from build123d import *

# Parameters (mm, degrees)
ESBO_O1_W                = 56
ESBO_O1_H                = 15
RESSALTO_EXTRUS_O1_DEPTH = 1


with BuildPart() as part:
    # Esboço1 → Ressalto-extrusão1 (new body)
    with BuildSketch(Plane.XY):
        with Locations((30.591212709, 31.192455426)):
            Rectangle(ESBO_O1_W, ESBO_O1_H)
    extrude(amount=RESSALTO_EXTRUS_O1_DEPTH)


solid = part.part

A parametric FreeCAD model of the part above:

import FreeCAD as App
import Part
import Sketcher

V = App.Vector
Q = App.Units.Quantity


def add_polygon(sketch, points):
    """Adds a closed chain of lines whose ends are joined by coincident constraints."""
    first, n = sketch.GeometryCount, len(points)
    for a, b in zip(points, points[1:] + points[:1]):
        sketch.addGeometry(Part.LineSegment(App.Vector(*a, 0), App.Vector(*b, 0)), False)
    for i in range(n):
        sketch.addConstraint(Sketcher.Constraint("Coincident", first + i, 2, first + (i + 1) % n, 1))

doc = App.newDocument("Part")
body = doc.addObject("PartDesign::Body", "Body")

# Sketch on XY plane
sketch1 = body.newObject("Sketcher::SketchObject", "Sketch")
sketch1.AttachmentSupport = (doc.getObject("XY_Plane"), [""])
sketch1.MapMode = "FlatFace"
add_polygon(sketch1, [(3, 39), (3, 24), (59, 24), (59, 39)])  # lines 0-3
sketch1.addConstraint([
    Sketcher.Constraint("Vertical", 0),
    Sketcher.Constraint("Horizontal", 1),
    Sketcher.Constraint("Vertical", 2),
    Sketcher.Constraint("Horizontal", 3),
    Sketcher.Constraint("DistanceX", 1, 1, 1, 2, Q("56 mm")),
    Sketcher.Constraint("DistanceY", 0, 2, 0, 1, Q("15 mm")),
    Sketcher.Constraint("DistanceX", -1, 1, 0, 2, Q("2.591213 mm")),
    Sketcher.Constraint("DistanceY", -1, 1, 0, 2, Q("23.692455 mm")),
])
pad1 = body.newObject("PartDesign::Pad", "Pad")
pad1.Profile = sketch1
pad1.Length = 1

doc.recompute()
